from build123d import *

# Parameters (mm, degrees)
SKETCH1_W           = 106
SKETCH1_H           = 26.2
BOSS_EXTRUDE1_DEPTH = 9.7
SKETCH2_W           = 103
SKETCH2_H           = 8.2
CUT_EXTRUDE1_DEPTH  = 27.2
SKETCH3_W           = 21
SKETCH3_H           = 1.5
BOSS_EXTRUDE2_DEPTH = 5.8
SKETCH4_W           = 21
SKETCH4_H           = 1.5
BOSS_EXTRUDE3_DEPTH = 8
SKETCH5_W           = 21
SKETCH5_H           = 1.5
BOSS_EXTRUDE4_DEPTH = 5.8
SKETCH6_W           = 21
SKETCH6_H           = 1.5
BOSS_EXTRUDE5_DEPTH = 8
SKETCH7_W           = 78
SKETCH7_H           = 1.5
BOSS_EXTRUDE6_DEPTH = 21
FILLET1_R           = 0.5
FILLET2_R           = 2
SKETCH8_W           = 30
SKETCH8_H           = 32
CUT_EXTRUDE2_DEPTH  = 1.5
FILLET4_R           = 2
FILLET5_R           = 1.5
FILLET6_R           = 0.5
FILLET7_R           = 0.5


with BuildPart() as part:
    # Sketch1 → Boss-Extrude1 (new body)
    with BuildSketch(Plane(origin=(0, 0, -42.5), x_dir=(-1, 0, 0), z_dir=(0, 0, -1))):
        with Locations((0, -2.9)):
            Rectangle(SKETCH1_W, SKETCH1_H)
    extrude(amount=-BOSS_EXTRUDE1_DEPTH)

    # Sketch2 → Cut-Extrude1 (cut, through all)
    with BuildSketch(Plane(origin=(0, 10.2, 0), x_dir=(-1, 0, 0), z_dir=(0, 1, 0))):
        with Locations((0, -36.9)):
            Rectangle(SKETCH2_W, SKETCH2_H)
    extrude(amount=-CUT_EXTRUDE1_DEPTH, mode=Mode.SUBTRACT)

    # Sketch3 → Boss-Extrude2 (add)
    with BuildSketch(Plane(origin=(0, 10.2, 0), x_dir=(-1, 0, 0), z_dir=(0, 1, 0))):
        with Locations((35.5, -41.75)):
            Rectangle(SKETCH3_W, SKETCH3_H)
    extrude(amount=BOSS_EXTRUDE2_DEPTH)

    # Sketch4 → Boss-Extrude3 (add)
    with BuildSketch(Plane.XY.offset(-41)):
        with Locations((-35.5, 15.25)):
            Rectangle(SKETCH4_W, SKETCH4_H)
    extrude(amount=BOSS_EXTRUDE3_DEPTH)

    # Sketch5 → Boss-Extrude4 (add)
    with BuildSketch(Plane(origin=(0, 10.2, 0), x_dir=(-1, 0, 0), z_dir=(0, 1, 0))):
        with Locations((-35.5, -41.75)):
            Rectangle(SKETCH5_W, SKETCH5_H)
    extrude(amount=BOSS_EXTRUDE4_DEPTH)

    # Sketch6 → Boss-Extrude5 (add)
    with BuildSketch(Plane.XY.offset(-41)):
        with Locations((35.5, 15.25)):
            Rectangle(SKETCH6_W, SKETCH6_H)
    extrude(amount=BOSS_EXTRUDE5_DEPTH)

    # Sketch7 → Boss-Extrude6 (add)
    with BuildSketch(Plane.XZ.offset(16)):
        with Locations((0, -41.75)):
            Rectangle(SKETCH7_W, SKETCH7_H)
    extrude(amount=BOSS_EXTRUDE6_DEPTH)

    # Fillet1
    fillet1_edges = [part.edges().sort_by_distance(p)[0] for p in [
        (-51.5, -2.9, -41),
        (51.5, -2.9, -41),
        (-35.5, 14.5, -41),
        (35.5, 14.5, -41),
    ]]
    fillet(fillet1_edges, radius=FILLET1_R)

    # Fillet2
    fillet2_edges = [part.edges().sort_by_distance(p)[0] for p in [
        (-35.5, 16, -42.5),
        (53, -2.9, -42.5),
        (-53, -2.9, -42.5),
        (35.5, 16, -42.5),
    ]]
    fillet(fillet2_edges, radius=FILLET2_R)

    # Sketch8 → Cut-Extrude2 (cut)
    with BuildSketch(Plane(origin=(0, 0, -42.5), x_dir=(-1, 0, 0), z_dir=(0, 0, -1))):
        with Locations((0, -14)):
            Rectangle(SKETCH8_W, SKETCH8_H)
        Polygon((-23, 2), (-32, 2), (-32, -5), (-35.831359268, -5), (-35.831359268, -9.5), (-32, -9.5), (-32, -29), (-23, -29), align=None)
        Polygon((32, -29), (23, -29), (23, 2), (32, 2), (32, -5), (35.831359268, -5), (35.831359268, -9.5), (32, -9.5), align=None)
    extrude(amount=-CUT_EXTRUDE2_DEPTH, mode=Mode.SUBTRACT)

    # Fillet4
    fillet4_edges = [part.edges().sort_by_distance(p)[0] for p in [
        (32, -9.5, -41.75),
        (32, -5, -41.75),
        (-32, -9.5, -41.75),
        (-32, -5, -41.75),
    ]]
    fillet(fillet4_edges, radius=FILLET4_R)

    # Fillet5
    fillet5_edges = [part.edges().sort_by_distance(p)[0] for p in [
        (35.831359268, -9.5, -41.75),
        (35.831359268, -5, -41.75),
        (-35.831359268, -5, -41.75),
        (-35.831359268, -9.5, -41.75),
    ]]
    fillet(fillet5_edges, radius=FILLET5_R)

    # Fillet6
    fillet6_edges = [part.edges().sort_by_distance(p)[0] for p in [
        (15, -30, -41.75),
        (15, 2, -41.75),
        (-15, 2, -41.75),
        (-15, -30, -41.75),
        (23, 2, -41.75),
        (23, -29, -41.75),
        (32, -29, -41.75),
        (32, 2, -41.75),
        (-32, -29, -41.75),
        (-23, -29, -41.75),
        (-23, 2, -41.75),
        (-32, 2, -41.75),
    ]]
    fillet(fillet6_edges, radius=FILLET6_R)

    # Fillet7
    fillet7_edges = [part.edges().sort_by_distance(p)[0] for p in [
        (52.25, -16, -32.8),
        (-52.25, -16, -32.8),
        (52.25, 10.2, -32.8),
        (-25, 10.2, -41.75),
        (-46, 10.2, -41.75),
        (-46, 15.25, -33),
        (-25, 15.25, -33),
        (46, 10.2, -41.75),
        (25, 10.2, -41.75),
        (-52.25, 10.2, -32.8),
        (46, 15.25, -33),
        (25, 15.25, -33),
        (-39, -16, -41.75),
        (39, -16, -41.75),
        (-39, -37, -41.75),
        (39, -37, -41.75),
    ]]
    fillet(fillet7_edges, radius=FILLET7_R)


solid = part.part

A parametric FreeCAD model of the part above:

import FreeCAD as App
import Part
import Sketcher
from FreeCAD import Vector


def edges_at(feature, points):
    """Names of the edges that pass closest to the given points."""
    edges = feature.Shape.Edges
    near = lambda p: min(range(len(edges)), key=lambda i: edges[i].distToShape(Part.Vertex(*p))[0])
    return sorted({f"Edge{near(p) + 1}" for p in points})

doc = App.newDocument("Part")
body = doc.addObject("PartDesign::Body", "Body")

# Sketch on XY plane
sketch1 = body.newObject("Sketcher::SketchObject", "Sketch")
sketch1.AttachmentSupport = (doc.getObject("XY_Plane"), [""])
sketch1.MapMode = "FlatFace"
sketch1.AttachmentOffset = App.Placement(Vector(0, 0, -42.5), App.Rotation())
sketch1.addGeometry([
    Part.LineSegment(Vector(53, 10, 0), Vector(53, -16, 0)),
    Part.LineSegment(Vector(53, -16, 0), Vector(-53, -16, 0)),
    Part.LineSegment(Vector(-53, -16, 0), Vector(-53, 10, 0)),
    Part.LineSegment(Vector(-53, 10, 0), Vector(53, 10, 0)),
], False)
sketch1.addConstraint([
    Sketcher.Constraint("Coincident", 0, 2, 1, 1),
    Sketcher.Constraint("Coincident", 1, 2, 2, 1),
    Sketcher.Constraint("Coincident", 2, 2, 3, 1),
    Sketcher.Constraint("Coincident", 3, 2, 0, 1),
    Sketcher.Constraint("Vertical", 0),
    Sketcher.Constraint("Horizontal", 1),
    Sketcher.Constraint("Vertical", 2),
    Sketcher.Constraint("Horizontal", 3),
    Sketcher.Constraint("DistanceX", 1, 2, 1, 1, 106.0),
    Sketcher.Constraint("DistanceY", 0, 2, 0, 1, 26.2),
    Sketcher.Constraint("DistanceX", -1, 1, 0, 2, 53.0),
    Sketcher.Constraint("DistanceY", 0, 2, -1, 1, 16.0),
])
pad1 = body.newObject("PartDesign::Pad", "Pad")
pad1.Profile = sketch1
pad1.Length = 9.7

# Sketch on XZ plane
sketch2 = body.newObject("Sketcher::SketchObject", "Sketch001")
sketch2.AttachmentSupport = (doc.getObject("XZ_Plane"), [""])
sketch2.MapMode = "FlatFace"
sketch2.AttachmentOffset = App.Placement(Vector(0, 0, -10.2), App.Rotation())
sketch2.addGeometry([
    Part.LineSegment(Vector(52, -33, 0), Vector(52, -41, 0)),
    Part.LineSegment(Vector(52, -41, 0), Vector(-52, -41, 0)),
    Part.LineSegment(Vector(-52, -41, 0), Vector(-52, -33, 0)),
    Part.LineSegment(Vector(-52, -33, 0), Vector(52, -33, 0)),
], False)
sketch2.addConstraint([
    Sketcher.Constraint("Coincident", 0, 2, 1, 1),
    Sketcher.Constraint("Coincident", 1, 2, 2, 1),
    Sketcher.Constraint("Coincident", 2, 2, 3, 1),
    Sketcher.Constraint("Coincident", 3, 2, 0, 1),
    Sketcher.Constraint("Vertical", 0),
    Sketcher.Constraint("Horizontal", 1),
    Sketcher.Constraint("Vertical", 2),
    Sketcher.Constraint("Horizontal", 3),
    Sketcher.Constraint("DistanceX", 1, 2, 1, 1, 103.0),
    Sketcher.Constraint("DistanceY", 0, 2, 0, 1, 8.2),
    Sketcher.Constraint("DistanceY", 0, 2, -1, 1, 41.0),
    Sketcher.Constraint("DistanceX", -1, 1, 0, 2, 51.5),
])
pocket1 = body.newObject("PartDesign::Pocket", "Pocket")
pocket1.Profile = sketch2
pocket1.Type = "ThroughAll"
pocket1.Reversed = True

# Sketch on XZ plane
sketch3 = body.newObject("Sketcher::SketchObject", "Sketch002")
sketch3.AttachmentSupport = (doc.getObject("XZ_Plane"), [""])
sketch3.MapMode = "FlatFace"
sketch3.AttachmentOffset = App.Placement(Vector(0, 0, -10.2), App.Rotation())
sketch3.addGeometry([
    Part.LineSegment(Vector(-25, -41, 0), Vector(-25, -42.5, 0)),
    Part.LineSegment(Vector(-25, -42.5, 0), Vector(-46, -42.5, 0)),
    Part.LineSegment(Vector(-46, -42.5, 0), Vector(-46, -41, 0)),
    Part.LineSegment(Vector(-46, -41, 0), Vector(-25, -41, 0)),
], False)
sketch3.addConstraint([
    Sketcher.Constraint("Coincident", 0, 2, 1, 1),
    Sketcher.Constraint("Coincident", 1, 2, 2, 1),
    Sketcher.Constraint("Coincident", 2, 2, 3, 1),
    Sketcher.Constraint("Coincident", 3, 2, 0, 1),
    Sketcher.Constraint("Vertical", 0),
    Sketcher.Constraint("Horizontal", 1),
    Sketcher.Constraint("Vertical", 2),
    Sketcher.Constraint("Horizontal", 3),
    Sketcher.Constraint("DistanceX", 1, 2, 1, 1, 21.0),
    Sketcher.Constraint("DistanceY", 0, 2, 0, 1, 1.5),
    Sketcher.Constraint("DistanceX", 0, 2, -1, 1, 25.0),
    Sketcher.Constraint("DistanceY", 2, 2, -1, 1, 41.0),
])
pad2 = body.newObject("PartDesign::Pad", "Pad001")
pad2.Profile = sketch3
pad2.Length = 5.8
pad2.Reversed = True

# Sketch on XY plane
sketch4 = body.newObject("Sketcher::SketchObject", "Sketch003")
sketch4.AttachmentSupport = (doc.getObject("XY_Plane"), [""])
sketch4.MapMode = "FlatFace"
sketch4.AttachmentOffset = App.Placement(Vector(0, 0, -41), App.Rotation())
sketch4.addGeometry([
    Part.LineSegment(Vector(-46, 16, 0), Vector(-46, 14.5, 0)),
    Part.LineSegment(Vector(-46, 14.5, 0), Vector(-25, 14.5, 0)),
    Part.LineSegment(Vector(-25, 14.5, 0), Vector(-25, 16, 0)),
    Part.LineSegment(Vector(-25, 16, 0), Vector(-46, 16, 0)),
], False)
sketch4.addConstraint([
    Sketcher.Constraint("Coincident", 0, 2, 1, 1),
    Sketcher.Constraint("Coincident", 1, 2, 2, 1),
    Sketcher.Constraint("Coincident", 2, 2, 3, 1),
    Sketcher.Constraint("Coincident", 3, 2, 0, 1),
    Sketcher.Constraint("Vertical", 0),
    Sketcher.Constraint("Horizontal", 1),
    Sketcher.Constraint("Vertical", 2),
    Sketcher.Constraint("Horizontal", 3),
    Sketcher.Constraint("DistanceX", 1, 1, 1, 2, 21.0),
    Sketcher.Constraint("DistanceY", 0, 2, 0, 1, 1.5),
    Sketcher.Constraint("DistanceX", 0, 2, -1, 1, 46.0),
    Sketcher.Constraint("DistanceY", -1, 1, 2, 2, 16.0),
])
pad3 = body.newObject("PartDesign::Pad", "Pad002")
pad3.Profile = sketch4
pad3.Length = 8

# Sketch on XZ plane
sketch5 = body.newObject("Sketcher::SketchObject", "Sketch004")
sketch5.AttachmentSupport = (doc.getObject("XZ_Plane"), [""])
sketch5.MapMode = "FlatFace"
sketch5.AttachmentOffset = App.Placement(Vector(0, 0, -10.2), App.Rotation())
sketch5.addGeometry([
    Part.LineSegment(Vector(46, -41, 0), Vector(46, -42.5, 0)),
    Part.LineSegment(Vector(46, -42.5, 0), Vector(25, -42.5, 0)),
    Part.LineSegment(Vector(25, -42.5, 0), Vector(25, -41, 0)),
    Part.LineSegment(Vector(25, -41, 0), Vector(46, -41, 0)),
], False)
sketch5.addConstraint([
    Sketcher.Constraint("Coincident", 0, 2, 1, 1),
    Sketcher.Constraint("Coincident", 1, 2, 2, 1),
    Sketcher.Constraint("Coincident", 2, 2, 3, 1),
    Sketcher.Constraint("Coincident", 3, 2, 0, 1),
    Sketcher.Constraint("Vertical", 0),
    Sketcher.Constraint("Horizontal", 1),
    Sketcher.Constraint("Vertical", 2),
    Sketcher.Constraint("Horizontal", 3),
    Sketcher.Constraint("DistanceX", 1, 2, 1, 1, 21.0),
    Sketcher.Constraint("DistanceY", 0, 2, 0, 1, 1.5),
    Sketcher.Constraint("DistanceX", -1, 1, 0, 2, 46.0),
    Sketcher.Constraint("DistanceY", 2, 2, -1, 1, 41.0),
])
pad4 = body.newObject("PartDesign::Pad", "Pad003")
pad4.Profile = sketch5
pad4.Length = 5.8
pad4.Reversed = True

# Sketch on XY plane
sketch6 = body.newObject("Sketcher::SketchObject", "Sketch005")
sketch6.AttachmentSupport = (doc.getObject("XY_Plane"), [""])
sketch6.MapMode = "FlatFace"
sketch6.AttachmentOffset = App.Placement(Vector(0, 0, -41), App.Rotation())
sketch6.addGeometry([
    Part.LineSegment(Vector(25, 16, 0), Vector(25, 14.5, 0)),
    Part.LineSegment(Vector(25, 14.5, 0), Vector(46, 14.5, 0)),
    Part.LineSegment(Vector(46, 14.5, 0), Vector(46, 16, 0)),
    Part.LineSegment(Vector(46, 16, 0), Vector(25, 16, 0)),
], False)
sketch6.addConstraint([
    Sketcher.Constraint("Coincident", 0, 2, 1, 1),
    Sketcher.Constraint("Coincident", 1, 2, 2, 1),
    Sketcher.Constraint("Coincident", 2, 2, 3, 1),
    Sketcher.Constraint("Coincident", 3, 2, 0, 1),
    Sketcher.Constraint("Vertical", 0),
    Sketcher.Constraint("Horizontal", 1),
    Sketcher.Constraint("Vertical", 2),
    Sketcher.Constraint("Horizontal", 3),
    Sketcher.Constraint("DistanceX", 1, 1, 1, 2, 21.0),
    Sketcher.Constraint("DistanceY", 0, 2, 0, 1, 1.5),
    Sketcher.Constraint("DistanceX", -1, 1, 0, 2, 25.0),
    Sketcher.Constraint("DistanceY", -1, 1, 2, 2, 16.0),
])
pad5 = body.newObject("PartDesign::Pad", "Pad004")
pad5.Profile = sketch6
pad5.Length = 8

# Sketch on XZ plane
sketch7 = body.newObject("Sketcher::SketchObject", "Sketch006")
sketch7.AttachmentSupport = (doc.getObject("XZ_Plane"), [""])
sketch7.MapMode = "FlatFace"
sketch7.AttachmentOffset = App.Placement(Vector(0, 0, 16), App.Rotation())
sketch7.addGeometry([
    Part.LineSegment(Vector(-39, -41, 0), Vector(-39, -42.5, 0)),
    Part.LineSegment(Vector(-39, -42.5, 0), Vector(39, -42.5, 0)),
    Part.LineSegment(Vector(39, -42.5, 0), Vector(39, -41, 0)),
    Part.LineSegment(Vector(39, -41, 0), Vector(-39, -41, 0)),
], False)
sketch7.addConstraint([
    Sketcher.Constraint("Coincident", 0, 2, 1, 1),
    Sketcher.Constraint("Coincident", 1, 2, 2, 1),
    Sketcher.Constraint("Coincident", 2, 2, 3, 1),
    Sketcher.Constraint("Coincident", 3, 2, 0, 1),
    Sketcher.Constraint("Vertical", 0),
    Sketcher.Constraint("Horizontal", 1),
    Sketcher.Constraint("Vertical", 2),
    Sketcher.Constraint("Horizontal", 3),
    Sketcher.Constraint("DistanceX", 1, 1, 1, 2, 78.0),
    Sketcher.Constraint("DistanceY", 0, 2, 0, 1, 1.5),
    Sketcher.Constraint("DistanceX", 0, 2, -1, 1, 39.0),
    Sketcher.Constraint("DistanceY", 2, 2, -1, 1, 41.0),
])
pad6 = body.newObject("PartDesign::Pad", "Pad005")
pad6.Profile = sketch7
pad6.Length = 21
doc.recompute()

fillet = body.newObject("PartDesign::Fillet", "Fillet")
fillet.Base = (pad6, edges_at(pad6, [
    (-51.5, -2.9, -41),
    (51.5, -2.9, -41),
    (-35.5, 14.5, -41),
    (35.5, 14.5, -41),
]))
fillet.Radius = 0.5
doc.recompute()

fillet2 = body.newObject("PartDesign::Fillet", "Fillet001")
fillet2.Base = (fillet, edges_at(fillet, [
    (-35.5, 16, -42.5),
    (53, -2.9, -42.5),
    (-53, -2.9, -42.5),
    (35.5, 16, -42.5),
]))
fillet2.Radius = 2

# Sketch on XY plane
sketch8 = body.newObject("Sketcher::SketchObject", "Sketch007")
sketch8.AttachmentSupport = (doc.getObject("XY_Plane"), [""])
sketch8.MapMode = "FlatFace"
sketch8.AttachmentOffset = App.Placement(Vector(0, 0, -42.5), App.Rotation())
sketch8.addGeometry([
    Part.LineSegment(Vector(15, 2, 0), Vector(15, -30, 0)),  # 0
    Part.LineSegment(Vector(15, -30, 0), Vector(-15, -30, 0)),  # 1
    Part.LineSegment(Vector(-15, -30, 0), Vector(-15, 2, 0)),  # 2
    Part.LineSegment(Vector(-15, 2, 0), Vector(15, 2, 0)),  # 3
    Part.LineSegment(Vector(23, 2, 0), Vector(32, 2, 0)),  # 4
    Part.LineSegment(Vector(32, 2, 0), Vector(32, -5, 0)),  # 5
    Part.LineSegment(Vector(32, -5, 0), Vector(35.8, -5, 0)),  # 6
    Part.LineSegment(Vector(35.8, -5, 0), Vector(35.8, -9.5, 0)),  # 7
    Part.LineSegment(Vector(35.8, -9.5, 0), Vector(32, -9.5, 0)),  # 8
    Part.LineSegment(Vector(32, -9.5, 0), Vector(32, -29, 0)),  # 9
    Part.LineSegment(Vector(32, -29, 0), Vector(23, -29, 0)),  # 10
    Part.LineSegment(Vector(23, -29, 0), Vector(23, 2, 0)),  # 11
    Part.LineSegment(Vector(-23, -29, 0), Vector(-32, -29, 0)),  # 12
    Part.LineSegment(Vector(-32, -29, 0), Vector(-32, -9.5, 0)),  # 13
    Part.LineSegment(Vector(-32, -9.5, 0), Vector(-35.8, -9.5, 0)),  # 14
    Part.LineSegment(Vector(-35.8, -9.5, 0), Vector(-35.8, -5, 0)),  # 15
    Part.LineSegment(Vector(-35.8, -5, 0), Vector(-32, -5, 0)),  # 16
    Part.LineSegment(Vector(-32, -5, 0), Vector(-32, 2, 0)),  # 17
    Part.LineSegment(Vector(-32, 2, 0), Vector(-23, 2, 0)),  # 18
    Part.LineSegment(Vector(-23, 2, 0), Vector(-23, -29, 0)),  # 19
], False)
sketch8.addConstraint([
    Sketcher.Constraint("Coincident", 0, 2, 1, 1),
    Sketcher.Constraint("Coincident", 1, 2, 2, 1),
    Sketcher.Constraint("Coincident", 2, 2, 3, 1),
    Sketcher.Constraint("Coincident", 3, 2, 0, 1),
    Sketcher.Constraint("Coincident", 4, 2, 5, 1),
    Sketcher.Constraint("Coincident", 5, 2, 6, 1),
    Sketcher.Constraint("Coincident", 6, 2, 7, 1),
    Sketcher.Constraint("Coincident", 7, 2, 8, 1),
    Sketcher.Constraint("Coincident", 8, 2, 9, 1),
    Sketcher.Constraint("Coincident", 9, 2, 10, 1),
    Sketcher.Constraint("Coincident", 10, 2, 11, 1),
    Sketcher.Constraint("Coincident", 11, 2, 4, 1),
    Sketcher.Constraint("Coincident", 12, 2, 13, 1),
    Sketcher.Constraint("Coincident", 13, 2, 14, 1),
    Sketcher.Constraint("Coincident", 14, 2, 15, 1),
    Sketcher.Constraint("Coincident", 15, 2, 16, 1),
    Sketcher.Constraint("Coincident", 16, 2, 17, 1),
    Sketcher.Constraint("Coincident", 17, 2, 18, 1),
    Sketcher.Constraint("Coincident", 18, 2, 19, 1),
    Sketcher.Constraint("Coincident", 19, 2, 12, 1),
    Sketcher.Constraint("Vertical", 0),
    Sketcher.Constraint("Horizontal", 1),
    Sketcher.Constraint("Vertical", 2),
    Sketcher.Constraint("Horizontal", 3),
    Sketcher.Constraint("Horizontal", 4),
    Sketcher.Constraint("Vertical", 5),
    Sketcher.Constraint("Horizontal", 6),
    Sketcher.Constraint("Vertical", 7),
    Sketcher.Constraint("Horizontal", 8),
    Sketcher.Constraint("Vertical", 9),
    Sketcher.Constraint("Horizontal", 10),
    Sketcher.Constraint("Vertical", 11),
    Sketcher.Constraint("Horizontal", 12),
    Sketcher.Constraint("Vertical", 13),
    Sketcher.Constraint("Horizontal", 14),
    Sketcher.Constraint("Vertical", 15),
    Sketcher.Constraint("Horizontal", 16),
    Sketcher.Constraint("Vertical", 17),
    Sketcher.Constraint("Horizontal", 18),
    Sketcher.Constraint("Vertical", 19),
    Sketcher.Constraint("Symmetric", 9, 2, 12, 2, -2),
    Sketcher.Constraint("Symmetric", 7, 2, 14, 2, -2),
    Sketcher.Constraint("Symmetric", 5, 2, 16, 2, -2),
    Sketcher.Constraint("Symmetric", 11, 2, 18, 2, -2),
    Sketcher.Constraint("Horizontal", 3, 2, 4, 2),
    Sketcher.Constraint("Vertical", 5, 2, 8, 2),
    Sketcher.Constraint("DistanceX", 1, 2, 1, 1, 30.0),
    Sketcher.Constraint("DistanceX", 4, 1, 4, 2, 9.0),
    Sketcher.Constraint("DistanceY", 0, 2, 0, 1, 32.0),
    Sketcher.Constraint("DistanceY", 5, 2, 5, 1, 7.0),
    Sketcher.Constraint("DistanceY", 11, 1, 11, 2, 31.0),
    Sketcher.Constraint("DistanceY", 7, 2, 7, 1, 4.5),
    Sketcher.Constraint("DistanceX", -1, 1, 0, 2, 15.0),
    Sketcher.Constraint("DistanceY", 0, 2, -1, 1, 30.0),
    Sketcher.Constraint("DistanceX", -1, 1, 4, 2, 32.0),
    Sketcher.Constraint("DistanceX", 6, 1, 6, 2, 3.831359),
])
pocket2 = body.newObject("PartDesign::Pocket", "Pocket001")
pocket2.Profile = sketch8
pocket2.Length = 1.5
pocket2.Reversed = True
doc.recompute()

fillet3 = body.newObject("PartDesign::Fillet", "Fillet002")
fillet3.Base = (pocket2, edges_at(pocket2, [
    (32, -9.5, -41.75),
    (32, -5, -41.75),
    (-32, -9.5, -41.75),
    (-32, -5, -41.75),
]))
fillet3.Radius = 2
doc.recompute()

fillet4 = body.newObject("PartDesign::Fillet", "Fillet003")
fillet4.Base = (fillet3, edges_at(fillet3, [
    (35.831, -9.5, -41.75),
    (35.831, -5, -41.75),
    (-35.831, -5, -41.75),
    (-35.831, -9.5, -41.75),
]))
fillet4.Radius = 1.5
doc.recompute()

fillet5 = body.newObject("PartDesign::Fillet", "Fillet004")
fillet5.Base = (fillet4, edges_at(fillet4, [
    (15, -30, -41.75),
    (15, 2, -41.75),
    (-15, 2, -41.75),
    (-15, -30, -41.75),
    (23, 2, -41.75),
    (23, -29, -41.75),
    (32, -29, -41.75),
    (32, 2, -41.75),
    (-32, -29, -41.75),
    (-23, -29, -41.75),
    (-23, 2, -41.75),
    (-32, 2, -41.75),
]))
fillet5.Radius = 0.5
doc.recompute()

fillet6 = body.newObject("PartDesign::Fillet", "Fillet005")
fillet6.Base = (fillet5, edges_at(fillet5, [
    (52.25, -16, -32.8),
    (-52.25, -16, -32.8),
    (52.25, 10.2, -32.8),
    (-25, 10.2, -41.75),
    (-46, 10.2, -41.75),
    (-46, 15.25, -33),
    (-25, 15.25, -33),
    (46, 10.2, -41.75),
    (25, 10.2, -41.75),
    (-52.25, 10.2, -32.8),
    (46, 15.25, -33),
    (25, 15.25, -33),
    (-39, -16, -41.75),
    (39, -16, -41.75),
    (-39, -37, -41.75),
    (39, -37, -41.75),
]))
fillet6.Radius = 0.5

doc.recompute()
